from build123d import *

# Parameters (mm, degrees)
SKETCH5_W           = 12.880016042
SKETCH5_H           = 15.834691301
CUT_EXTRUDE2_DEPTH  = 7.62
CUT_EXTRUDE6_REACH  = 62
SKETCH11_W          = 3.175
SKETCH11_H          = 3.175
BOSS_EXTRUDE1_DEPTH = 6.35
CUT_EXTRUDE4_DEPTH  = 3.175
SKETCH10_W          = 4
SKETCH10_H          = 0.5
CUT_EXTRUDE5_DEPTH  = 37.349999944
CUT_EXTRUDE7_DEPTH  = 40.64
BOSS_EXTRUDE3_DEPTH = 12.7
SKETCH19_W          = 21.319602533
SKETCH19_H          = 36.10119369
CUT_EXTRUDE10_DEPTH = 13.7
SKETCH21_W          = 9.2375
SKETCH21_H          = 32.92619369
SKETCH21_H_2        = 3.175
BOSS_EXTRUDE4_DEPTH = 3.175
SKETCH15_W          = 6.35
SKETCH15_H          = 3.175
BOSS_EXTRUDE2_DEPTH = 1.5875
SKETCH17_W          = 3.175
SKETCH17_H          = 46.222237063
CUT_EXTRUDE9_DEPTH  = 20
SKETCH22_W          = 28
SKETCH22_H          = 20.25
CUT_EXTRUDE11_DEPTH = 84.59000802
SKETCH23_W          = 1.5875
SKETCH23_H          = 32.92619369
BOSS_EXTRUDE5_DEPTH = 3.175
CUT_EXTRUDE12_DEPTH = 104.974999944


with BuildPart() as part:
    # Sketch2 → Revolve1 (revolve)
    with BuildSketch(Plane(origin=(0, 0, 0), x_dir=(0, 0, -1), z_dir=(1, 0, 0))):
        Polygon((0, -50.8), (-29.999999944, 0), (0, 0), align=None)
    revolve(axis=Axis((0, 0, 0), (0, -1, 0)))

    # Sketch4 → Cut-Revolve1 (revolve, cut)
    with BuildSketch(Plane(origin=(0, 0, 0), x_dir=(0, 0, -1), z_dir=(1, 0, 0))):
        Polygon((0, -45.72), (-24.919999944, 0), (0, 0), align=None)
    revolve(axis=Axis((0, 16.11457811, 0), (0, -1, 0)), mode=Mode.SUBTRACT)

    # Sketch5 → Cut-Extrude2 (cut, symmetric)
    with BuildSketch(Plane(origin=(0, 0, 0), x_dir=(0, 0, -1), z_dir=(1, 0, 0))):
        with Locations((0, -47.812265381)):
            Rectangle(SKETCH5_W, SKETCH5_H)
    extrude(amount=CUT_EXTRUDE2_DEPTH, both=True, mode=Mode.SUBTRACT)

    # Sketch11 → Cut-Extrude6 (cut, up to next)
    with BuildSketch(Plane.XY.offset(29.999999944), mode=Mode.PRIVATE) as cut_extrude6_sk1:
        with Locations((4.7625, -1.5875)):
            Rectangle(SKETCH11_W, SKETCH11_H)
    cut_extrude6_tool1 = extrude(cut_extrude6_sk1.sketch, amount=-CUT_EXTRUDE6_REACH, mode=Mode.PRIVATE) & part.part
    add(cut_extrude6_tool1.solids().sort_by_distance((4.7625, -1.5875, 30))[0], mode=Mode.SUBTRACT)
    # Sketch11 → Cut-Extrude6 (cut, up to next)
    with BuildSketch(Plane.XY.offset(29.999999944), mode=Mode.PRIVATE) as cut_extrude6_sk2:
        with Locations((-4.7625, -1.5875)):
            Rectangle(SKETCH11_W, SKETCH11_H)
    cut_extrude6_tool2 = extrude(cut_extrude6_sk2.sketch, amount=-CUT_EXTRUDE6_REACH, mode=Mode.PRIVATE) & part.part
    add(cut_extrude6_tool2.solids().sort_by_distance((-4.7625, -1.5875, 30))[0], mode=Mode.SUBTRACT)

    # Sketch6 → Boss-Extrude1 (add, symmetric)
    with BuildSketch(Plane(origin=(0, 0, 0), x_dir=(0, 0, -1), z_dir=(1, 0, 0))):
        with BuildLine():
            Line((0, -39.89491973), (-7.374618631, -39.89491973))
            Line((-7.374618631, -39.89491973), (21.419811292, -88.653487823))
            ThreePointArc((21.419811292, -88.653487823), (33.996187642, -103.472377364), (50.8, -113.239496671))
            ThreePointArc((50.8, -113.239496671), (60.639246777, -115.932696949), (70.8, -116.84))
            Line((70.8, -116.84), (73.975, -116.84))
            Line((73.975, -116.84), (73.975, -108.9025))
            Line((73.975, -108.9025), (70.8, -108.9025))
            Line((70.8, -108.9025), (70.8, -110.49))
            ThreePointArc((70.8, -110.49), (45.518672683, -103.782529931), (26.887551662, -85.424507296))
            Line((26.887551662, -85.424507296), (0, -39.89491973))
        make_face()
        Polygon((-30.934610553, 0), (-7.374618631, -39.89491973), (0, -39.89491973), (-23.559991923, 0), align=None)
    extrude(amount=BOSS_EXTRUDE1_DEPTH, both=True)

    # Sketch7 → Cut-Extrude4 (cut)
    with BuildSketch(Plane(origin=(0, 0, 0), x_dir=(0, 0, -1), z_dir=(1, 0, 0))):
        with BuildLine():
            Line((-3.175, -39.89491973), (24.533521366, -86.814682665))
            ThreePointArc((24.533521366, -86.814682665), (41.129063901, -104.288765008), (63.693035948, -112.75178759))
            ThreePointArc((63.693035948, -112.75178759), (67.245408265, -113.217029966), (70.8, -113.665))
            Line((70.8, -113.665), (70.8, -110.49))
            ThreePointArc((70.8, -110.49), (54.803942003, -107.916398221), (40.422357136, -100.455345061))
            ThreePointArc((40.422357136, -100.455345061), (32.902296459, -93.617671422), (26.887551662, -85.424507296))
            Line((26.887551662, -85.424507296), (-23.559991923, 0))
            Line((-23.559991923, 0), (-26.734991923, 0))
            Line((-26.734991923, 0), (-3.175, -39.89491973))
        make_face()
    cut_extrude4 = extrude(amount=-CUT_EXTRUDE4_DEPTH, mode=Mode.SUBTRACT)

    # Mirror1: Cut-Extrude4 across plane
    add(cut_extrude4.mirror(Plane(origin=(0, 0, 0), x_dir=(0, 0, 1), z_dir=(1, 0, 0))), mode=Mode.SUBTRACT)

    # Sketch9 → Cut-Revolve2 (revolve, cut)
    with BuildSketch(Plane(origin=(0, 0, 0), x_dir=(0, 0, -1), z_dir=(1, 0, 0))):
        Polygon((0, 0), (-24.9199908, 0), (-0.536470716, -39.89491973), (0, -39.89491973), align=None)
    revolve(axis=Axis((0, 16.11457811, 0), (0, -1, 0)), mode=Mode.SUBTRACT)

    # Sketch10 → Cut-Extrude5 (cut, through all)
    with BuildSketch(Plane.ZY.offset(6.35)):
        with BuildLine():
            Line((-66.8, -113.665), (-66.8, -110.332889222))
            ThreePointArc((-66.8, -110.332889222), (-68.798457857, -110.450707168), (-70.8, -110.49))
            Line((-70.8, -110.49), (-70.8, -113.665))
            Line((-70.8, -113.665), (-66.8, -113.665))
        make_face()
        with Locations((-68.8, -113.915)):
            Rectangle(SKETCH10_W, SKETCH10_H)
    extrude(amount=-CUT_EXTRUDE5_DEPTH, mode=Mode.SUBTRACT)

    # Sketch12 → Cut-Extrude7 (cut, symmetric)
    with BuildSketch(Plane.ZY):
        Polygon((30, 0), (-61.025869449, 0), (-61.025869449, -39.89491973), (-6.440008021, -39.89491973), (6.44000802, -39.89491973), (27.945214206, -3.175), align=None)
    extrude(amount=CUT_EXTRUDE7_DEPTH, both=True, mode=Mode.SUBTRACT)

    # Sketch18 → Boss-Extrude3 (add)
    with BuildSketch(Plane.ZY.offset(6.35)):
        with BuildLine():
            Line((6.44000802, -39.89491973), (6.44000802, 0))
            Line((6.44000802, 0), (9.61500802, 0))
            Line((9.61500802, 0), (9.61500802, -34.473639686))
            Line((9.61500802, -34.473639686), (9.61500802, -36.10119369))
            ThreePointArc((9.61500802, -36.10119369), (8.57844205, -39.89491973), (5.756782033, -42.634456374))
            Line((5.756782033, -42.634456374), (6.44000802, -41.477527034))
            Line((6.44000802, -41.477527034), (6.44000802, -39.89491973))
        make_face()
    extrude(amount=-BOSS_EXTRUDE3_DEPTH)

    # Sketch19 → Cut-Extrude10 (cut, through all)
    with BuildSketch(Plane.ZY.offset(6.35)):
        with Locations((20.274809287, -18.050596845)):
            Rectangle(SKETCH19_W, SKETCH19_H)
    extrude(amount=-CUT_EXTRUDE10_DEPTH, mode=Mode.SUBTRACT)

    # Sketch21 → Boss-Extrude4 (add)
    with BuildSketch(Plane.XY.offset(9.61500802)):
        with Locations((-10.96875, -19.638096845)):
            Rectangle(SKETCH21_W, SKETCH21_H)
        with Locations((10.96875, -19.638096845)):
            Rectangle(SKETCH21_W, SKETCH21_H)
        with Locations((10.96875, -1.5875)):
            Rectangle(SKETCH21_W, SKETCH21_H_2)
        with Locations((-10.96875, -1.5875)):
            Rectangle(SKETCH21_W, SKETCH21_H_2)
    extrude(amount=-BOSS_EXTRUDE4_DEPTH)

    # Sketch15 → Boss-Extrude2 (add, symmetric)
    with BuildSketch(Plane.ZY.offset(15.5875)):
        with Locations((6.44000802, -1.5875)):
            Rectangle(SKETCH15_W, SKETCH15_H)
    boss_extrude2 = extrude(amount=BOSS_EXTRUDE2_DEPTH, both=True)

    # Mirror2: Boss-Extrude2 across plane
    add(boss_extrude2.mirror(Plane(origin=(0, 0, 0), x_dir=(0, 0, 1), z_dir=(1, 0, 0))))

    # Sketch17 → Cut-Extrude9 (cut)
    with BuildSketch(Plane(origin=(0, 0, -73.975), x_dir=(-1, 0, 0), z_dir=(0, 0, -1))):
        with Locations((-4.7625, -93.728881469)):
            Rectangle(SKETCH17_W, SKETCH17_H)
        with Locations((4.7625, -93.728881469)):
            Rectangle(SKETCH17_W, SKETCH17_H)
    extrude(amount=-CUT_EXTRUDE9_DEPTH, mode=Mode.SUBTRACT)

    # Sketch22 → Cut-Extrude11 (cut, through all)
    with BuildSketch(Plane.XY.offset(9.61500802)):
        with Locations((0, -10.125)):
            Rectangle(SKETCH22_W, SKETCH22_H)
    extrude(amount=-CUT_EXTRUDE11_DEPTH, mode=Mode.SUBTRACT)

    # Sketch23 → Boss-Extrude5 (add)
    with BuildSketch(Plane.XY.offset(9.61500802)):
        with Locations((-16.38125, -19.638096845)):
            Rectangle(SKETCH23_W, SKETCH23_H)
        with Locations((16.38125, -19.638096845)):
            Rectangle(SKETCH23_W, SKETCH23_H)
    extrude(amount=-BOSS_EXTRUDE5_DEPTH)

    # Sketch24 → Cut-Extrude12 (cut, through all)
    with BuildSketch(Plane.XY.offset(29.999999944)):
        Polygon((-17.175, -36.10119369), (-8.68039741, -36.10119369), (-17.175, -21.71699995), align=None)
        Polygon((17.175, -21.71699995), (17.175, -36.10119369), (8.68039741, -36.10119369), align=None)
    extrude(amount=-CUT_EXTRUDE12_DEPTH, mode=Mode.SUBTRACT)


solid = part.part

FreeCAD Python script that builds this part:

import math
import FreeCAD as App
import Part
import Sketcher

V = App.Vector
Q = App.Units.Quantity

doc = App.newDocument("Part")
body = doc.addObject("PartDesign::Body", "Body")

# Sketch on YZ plane
sketch1 = body.newObject("Sketcher::SketchObject", "Sketch")
sketch1.AttachmentSupport = (doc.getObject("YZ_Plane"), [""])
sketch1.MapMode = "FlatFace"
sketch1.addGeometry([
    Part.LineSegment(V(0, 30, 0), V(-51, 0, 0)),
    Part.LineSegment(V(-51, 0, 0), V(0, 0, 0)),
    Part.LineSegment(V(0, 0, 0), V(0, 30, 0)),
], False)
sketch1.addConstraint([
    Sketcher.Constraint("Coincident", 0, 2, 1, 1),
    Sketcher.Constraint("Coincident", 1, 2, 2, 1),
    Sketcher.Constraint("Coincident", 2, 2, 0, 1),
    Sketcher.Constraint("Horizontal", 1),
    Sketcher.Constraint("Vertical", 2),
    Sketcher.Constraint("Coincident", 1, 2, -1, 1),
    Sketcher.Constraint("DistanceX", 1, 1, 1, 2, Q("2 in")),
    Sketcher.Constraint("DistanceY", 2, 1, 2, 2, Q("30 mm")),
])
revolution = body.newObject("PartDesign::Revolution", "Revolution")
revolution.Profile = sketch1
revolution.ReferenceAxis = (sketch1, ["H_Axis"])
revolution.Angle = 360

# Sketch on YZ plane
sketch2 = body.newObject("Sketcher::SketchObject", "Sketch001")
sketch2.AttachmentSupport = (doc.getObject("YZ_Plane"), [""])
sketch2.MapMode = "FlatFace"
sketch2.addGeometry([
    Part.LineSegment(V(0, 25, 0), V(-46, 0, 0)),
    Part.LineSegment(V(-46, 0, 0), V(0, 0, 0)),
    Part.LineSegment(V(0, 0, 0), V(0, 25, 0)),
], False)
sketch2.addConstraint([
    Sketcher.Constraint("Coincident", 0, 2, 1, 1),
    Sketcher.Constraint("Coincident", 1, 2, 2, 1),
    Sketcher.Constraint("Coincident", 2, 2, 0, 1),
    Sketcher.Constraint("Horizontal", 1),
    Sketcher.Constraint("Vertical", 2),
    Sketcher.Constraint("Coincident", 1, 2, -1, 1),
    Sketcher.Constraint("DistanceX", 1, 1, 1, 2, Q("1.8 in")),
    Sketcher.Constraint("DistanceY", 2, 1, 2, 2, Q("24.92 mm")),
])
groove = body.newObject("PartDesign::Groove", "Groove")
groove.Profile = sketch2
groove.ReferenceAxis = (sketch2, ["H_Axis"])
groove.Angle = 360

# Sketch on YZ plane
sketch3 = body.newObject("Sketcher::SketchObject", "Sketch002")
sketch3.AttachmentSupport = (doc.getObject("YZ_Plane"), [""])
sketch3.MapMode = "FlatFace"
sketch3.addGeometry([
    Part.LineSegment(V(-40, 6, 0), V(-56, 6, 0)),
    Part.LineSegment(V(-56, 6, 0), V(-56, -6, 0)),
    Part.LineSegment(V(-56, -6, 0), V(-40, -6, 0)),
    Part.LineSegment(V(-40, -6, 0), V(-40, 6, 0)),
], False)
sketch3.addConstraint([
    Sketcher.Constraint("Coincident", 0, 2, 1, 1),
    Sketcher.Constraint("Coincident", 1, 2, 2, 1),
    Sketcher.Constraint("Coincident", 2, 2, 3, 1),
    Sketcher.Constraint("Coincident", 3, 2, 0, 1),
    Sketcher.Constraint("Horizontal", 0),
    Sketcher.Constraint("Vertical", 1),
    Sketcher.Constraint("Horizontal", 2),
    Sketcher.Constraint("Vertical", 3),
    Sketcher.Constraint("DistanceX", 0, 2, 0, 1, Q("15.834691 mm")),
    Sketcher.Constraint("DistanceY", 1, 2, 1, 1, Q("12.880016 mm")),
    Sketcher.Constraint("DistanceX", 0, 2, -1, 1, Q("55.729611 mm")),
    Sketcher.Constraint("DistanceY", -1, 1, 0, 2, Q("6.440008 mm")),
])
pocket1 = body.newObject("PartDesign::Pocket", "Pocket")
pocket1.Profile = sketch3
pocket1.Length = Q("0.6 in")
pocket1.Midplane = True

# Sketch on XY plane
sketch4 = body.newObject("Sketcher::SketchObject", "Sketch003")
sketch4.AttachmentSupport = (doc.getObject("XY_Plane"), [""])
sketch4.MapMode = "FlatFace"
sketch4.AttachmentOffset = App.Placement(V(0, 0, 30), App.Rotation())
sketch4.addGeometry([
    Part.LineSegment(V(3.2, 0, 0), V(3.2, -3.2, 0)),
    Part.LineSegment(V(3.2, -3.2, 0), V(6.3, -3.2, 0)),
    Part.LineSegment(V(6.3, -3.2, 0), V(6.3, 0, 0)),
    Part.LineSegment(V(6.3, 0, 0), V(3.2, 0, 0)),
], False)
sketch4.addConstraint([
    Sketcher.Constraint("Coincident", 0, 2, 1, 1),
    Sketcher.Constraint("Coincident", 1, 2, 2, 1),
    Sketcher.Constraint("Coincident", 2, 2, 3, 1),
    Sketcher.Constraint("Coincident", 3, 2, 0, 1),
    Sketcher.Constraint("Vertical", 0),
    Sketcher.Constraint("Horizontal", 1),
    Sketcher.Constraint("Vertical", 2),
    Sketcher.Constraint("Horizontal", 3),
    Sketcher.Constraint("PointOnObject", 2, 2, -1),
    Sketcher.Constraint("Equal", 3, 0),
    Sketcher.Constraint("DistanceX", 1, 1, 1, 2, Q("0.125 in")),
    Sketcher.Constraint("DistanceX", -1, 1, 1, 2, Q("0.25 in")),
])
pocket2 = body.newObject("PartDesign::Pocket", "Pocket001")
pocket2.Profile = sketch4
pocket2.Length = 7.69691

# Sketch on XY plane
sketch5 = body.newObject("Sketcher::SketchObject", "Sketch004")
sketch5.AttachmentSupport = (doc.getObject("XY_Plane"), [""])
sketch5.MapMode = "FlatFace"
sketch5.AttachmentOffset = App.Placement(V(0, 0, 30), App.Rotation())
sketch5.addGeometry([
    Part.LineSegment(V(-6.3, 0, 0), V(-6.3, -3.2, 0)),
    Part.LineSegment(V(-6.3, -3.2, 0), V(-3.2, -3.2, 0)),
    Part.LineSegment(V(-3.2, -3.2, 0), V(-3.2, 0, 0)),
    Part.LineSegment(V(-3.2, 0, 0), V(-6.3, 0, 0)),
], False)
sketch5.addConstraint([
    Sketcher.Constraint("Coincident", 0, 2, 1, 1),
    Sketcher.Constraint("Coincident", 1, 2, 2, 1),
    Sketcher.Constraint("Coincident", 2, 2, 3, 1),
    Sketcher.Constraint("Coincident", 3, 2, 0, 1),
    Sketcher.Constraint("Vertical", 0),
    Sketcher.Constraint("Horizontal", 1),
    Sketcher.Constraint("Vertical", 2),
    Sketcher.Constraint("Horizontal", 3),
    Sketcher.Constraint("PointOnObject", 2, 2, -1),
    Sketcher.Constraint("Equal", 3, 0),
    Sketcher.Constraint("DistanceX", 1, 1, 1, 2, Q("0.125 in")),
    Sketcher.Constraint("DistanceX", 0, 2, -1, 1, Q("0.25 in")),
])
pocket3 = body.newObject("PartDesign::Pocket", "Pocket002")
pocket3.Profile = sketch5
pocket3.Length = 7.69691

# Sketch on YZ plane
sketch6 = body.newObject("Sketcher::SketchObject", "Sketch005")
sketch6.AttachmentSupport = (doc.getObject("YZ_Plane"), [""])
sketch6.MapMode = "FlatFace"
sketch6.addGeometry([
    Part.LineSegment(V(-39.9, 7.4, 0), V(-88.7, -21.4, 0)),  # 0
    Part.ArcOfCircle(Part.Circle(V(-59.5, -70.8, 0), V(0, 0, 1), 57.3), math.radians(121), math.radians(160)),  # 1
    Part.ArcOfCircle(Part.Circle(V(-59.5, -70.8, 0), V(0, 0, 1), 57.3), math.radians(160), math.radians(180)),  # 2
    Part.LineSegment(V(-116.8, -70.8, 0), V(-116.8, -74, 0)),  # 3
    Part.LineSegment(V(-116.8, -74, 0), V(-108.9, -74, 0)),  # 4
    Part.LineSegment(V(-108.9, -74, 0), V(-108.9, -70.8, 0)),  # 5
    Part.LineSegment(V(-108.9, -70.8, 0), V(-110.5, -70.8, 0)),  # 6
    Part.ArcOfCircle(Part.Circle(V(-59.5, -70.8, 0), V(0, 0, 1), 51), math.radians(121), math.radians(180)),  # 7
    Part.LineSegment(V(-85.4, -26.9, 0), V(-39.9, 0, 0)),  # 8
    Part.LineSegment(V(-39.9, 0, 0), V(0, 23.6, 0)),  # 9
    Part.LineSegment(V(0, 23.6, 0), V(0, 30.9, 0)),  # 10
    Part.LineSegment(V(0, 30.9, 0), V(-39.9, 7.4, 0)),  # 11
], False)
sketch6.addConstraint([
    Sketcher.Constraint("Tangent", 0, 2, 1, 1),
    Sketcher.Constraint("Tangent", 1, 2, 2, 1),
    Sketcher.Constraint("Tangent", 2, 2, 3, 1),
    Sketcher.Constraint("Coincident", 3, 2, 4, 1),
    Sketcher.Constraint("Coincident", 4, 2, 5, 1),
    Sketcher.Constraint("Coincident", 5, 2, 6, 1),
    Sketcher.Constraint("Coincident", 6, 2, 7, 2),
    Sketcher.Constraint("Tangent", 7, 1, 8, 1),
    Sketcher.Constraint("Coincident", 8, 2, 9, 1),
    Sketcher.Constraint("Coincident", 9, 2, 10, 1),
    Sketcher.Constraint("Coincident", 10, 2, 11, 1),
    Sketcher.Constraint("Coincident", 11, 2, 0, 1),
    Sketcher.Constraint("Vertical", 3),
    Sketcher.Constraint("Horizontal", 4),
    Sketcher.Constraint("Vertical", 5),
    Sketcher.Constraint("Horizontal", 6),
    Sketcher.Constraint("Vertical", 10),
    Sketcher.Constraint("Coincident", 7, 3, 1, 3),
    Sketcher.Constraint("Equal", 1, 2),
    Sketcher.Constraint("PointOnObject", 8, 2, -1),
    Sketcher.Constraint("PointOnObject", 9, 2, -2),
    Sketcher.Constraint("Parallel", 0, 8),
    Sketcher.Constraint("Parallel", 8, 9),
    Sketcher.Constraint("Parallel", 9, 11),
    Sketcher.Constraint("Horizontal", 2, 2, 5, 2),
    Sketcher.Constraint("Vertical", 8, 2, 11, 2),
    Sketcher.Constraint("DistanceY", 1, 2, -1, 1, Q("2 in")),
    Sketcher.Constraint("DistanceX", 2, 2, -1, 1, Q("4.6 in")),
    Sketcher.Constraint("DistanceX", 4, 1, 4, 2, Q("0.3125 in")),
    Sketcher.Constraint("DistanceX", 6, 2, 6, 1, Q("0.0625 in")),
    Sketcher.Constraint("DistanceY", 3, 2, 3, 1, Q("0.125 in")),
    Sketcher.Constraint("Radius", 1, Q("57.348041 mm")),
    Sketcher.Constraint("DistanceY", 10, 1, 10, 2, Q("7.374619 mm")),
    Sketcher.Constraint("DistanceY", 1, 3, -1, 1, Q("70.8 mm")),
])
pad1 = body.newObject("PartDesign::Pad", "Pad")
pad1.Profile = sketch6
pad1.Length = Q("0.5 in")
pad1.Midplane = True

# Sketch on YZ plane
sketch7 = body.newObject("Sketcher::SketchObject", "Sketch006")
sketch7.AttachmentSupport = (doc.getObject("YZ_Plane"), [""])
sketch7.MapMode = "FlatFace"
sketch7.addGeometry([
    Part.LineSegment(V(-39.9, 3.2, 0), V(-86.8, -24.5, 0)),  # 0
    Part.ArcOfCircle(Part.Circle(V(-59.5, -70.8, 0), V(0, 0, 1), 53.7), math.radians(121), math.radians(172)),  # 1
    Part.ArcOfCircle(Part.Circle(V(617.9, -161.2, 0), V(0, 0, 1), 737.1), math.radians(172.4), math.radians(172.96)),  # 2
    Part.LineSegment(V(-113.7, -70.8, 0), V(-110.5, -70.8, 0)),  # 3
    Part.ArcOfCircle(Part.Circle(V(-59.5, -70.8, 0), V(0, 0, 1), 51), math.radians(143), math.radians(180)),  # 4
    Part.ArcOfCircle(Part.Circle(V(-59.5, -70.8, 0), V(0, 0, 1), 51), math.radians(121), math.radians(143)),  # 5
    Part.LineSegment(V(-85.4, -26.9, 0), V(0, 23.6, 0)),  # 6
    Part.LineSegment(V(0, 23.6, 0), V(0, 26.7, 0)),  # 7
    Part.LineSegment(V(0, 26.7, 0), V(-39.9, 3.2, 0)),  # 8
], False)
sketch7.addConstraint([
    Sketcher.Constraint("Tangent", 0, 2, 1, 1),
    Sketcher.Constraint("Tangent", 1, 2, 2, 1),
    Sketcher.Constraint("Coincident", 2, 2, 3, 1),
    Sketcher.Constraint("Coincident", 3, 2, 4, 2),
    Sketcher.Constraint("Tangent", 4, 1, 5, 2),
    Sketcher.Constraint("Tangent", 5, 1, 6, 1),
    Sketcher.Constraint("Coincident", 6, 2, 7, 1),
    Sketcher.Constraint("Coincident", 7, 2, 8, 1),
    Sketcher.Constraint("Coincident", 8, 2, 0, 1),
    Sketcher.Constraint("Horizontal", 3),
    Sketcher.Constraint("Vertical", 7),
    Sketcher.Constraint("Coincident", 4, 3, 1, 3),
    Sketcher.Constraint("Equal", 4, 5),
    Sketcher.Constraint("PointOnObject", 6, 2, -2),
    Sketcher.Constraint("Parallel", 0, 6),
    Sketcher.Constraint("Parallel", 6, 8),
    Sketcher.Constraint("Equal", 3, 7),
    Sketcher.Constraint("DistanceX", 3, 1, 3, 2, Q("0.125 in")),
    Sketcher.Constraint("DistanceX", 3, 2, -1, 1, Q("4.35 in")),
    Sketcher.Constraint("DistanceY", -1, 1, 8, 2, Q("0.125 in")),
    Sketcher.Constraint("Radius", 1, Q("53.731911 mm")),
    Sketcher.Constraint("Radius", 4, Q("50.998041 mm")),
    Sketcher.Constraint("DistanceY", 1, 2, -1, 1, Q("2.5075998 in")),
    Sketcher.Constraint("Radius", 2, Q("737.081714 mm")),
    Sketcher.Constraint("DistanceY", 1, 3, -1, 1, Q("70.8 mm")),
    Sketcher.Constraint("DistanceY", 1, 2, 4, 1, Q("23.270679 mm")),
])
pocket4 = body.newObject("PartDesign::Pocket", "Pocket003")
pocket4.Profile = sketch7
pocket4.Length = Q("0.125 in")
doc.recompute()

mirrored = body.newObject("PartDesign::Mirrored", "Mirrored")
mirrored.Originals = [pocket4]
mirrored.MirrorPlane = (doc.getObject("YZ_Plane"), [""])
body.Tip = mirrored

# Sketch on YZ plane
sketch8 = body.newObject("Sketcher::SketchObject", "Sketch007")
sketch8.AttachmentSupport = (doc.getObject("YZ_Plane"), [""])
sketch8.MapMode = "FlatFace"
sketch8.addGeometry([
    Part.LineSegment(V(0, 0, 0), V(0, 24.9, 0)),
    Part.LineSegment(V(0, 24.9, 0), V(-39.9, 0.5, 0)),
    Part.LineSegment(V(-39.9, 0.5, 0), V(-39.9, 0, 0)),
    Part.LineSegment(V(-39.9, 0, 0), V(0, 0, 0)),
], False)
sketch8.addConstraint([
    Sketcher.Constraint("Coincident", 0, 2, 1, 1),
    Sketcher.Constraint("Coincident", 1, 2, 2, 1),
    Sketcher.Constraint("Coincident", 2, 2, 3, 1),
    Sketcher.Constraint("Coincident", 3, 2, 0, 1),
    Sketcher.Constraint("Vertical", 0),
    Sketcher.Constraint("Vertical", 2),
    Sketcher.Constraint("Horizontal", 3),
    Sketcher.Constraint("Coincident", 3, 2, -1, 1),
    Sketcher.Constraint("DistanceX", 3, 1, 3, 2, Q("39.89492 mm")),
    Sketcher.Constraint("DistanceY", 0, 1, 0, 2, Q("24.919991 mm")),
    Sketcher.Constraint("DistanceY", 2, 2, 2, 1, Q("0.536471 mm")),
])
groove2 = body.newObject("PartDesign::Groove", "Groove001")
groove2.Profile = sketch8
groove2.ReferenceAxis = (sketch8, ["H_Axis"])
groove2.Angle = 360

# Sketch on YZ plane
sketch9 = body.newObject("Sketcher::SketchObject", "Sketch008")
sketch9.AttachmentSupport = (doc.getObject("YZ_Plane"), [""])
sketch9.MapMode = "FlatFace"
sketch9.AttachmentOffset = App.Placement(V(0, 0, -0.25 * 25.4), App.Rotation())
sketch9.addGeometry([
    Part.ArcOfCircle(Part.Circle(V(-59.5, -70.8, 0), V(0, 0, 1), 51), math.radians(175.5), math.radians(180)),
    Part.LineSegment(V(-110.5, -70.8, 0), V(-114.2, -70.8, 0)),
    Part.LineSegment(V(-114.2, -70.8, 0), V(-114.2, -66.8, 0)),
    Part.LineSegment(V(-114.2, -66.8, 0), V(-110.3, -66.8, 0)),
], False)
sketch9.addConstraint([
    Sketcher.Constraint("Coincident", 0, 2, 1, 1),
    Sketcher.Constraint("Coincident", 1, 2, 2, 1),
    Sketcher.Constraint("Coincident", 2, 2, 3, 1),
    Sketcher.Constraint("Coincident", 3, 2, 0, 1),
    Sketcher.Constraint("Horizontal", 1),
    Sketcher.Constraint("Vertical", 2),
    Sketcher.Constraint("Horizontal", 3),
    Sketcher.Constraint("DistanceX", 0, 2, -1, 1, Q("4.35 in")),
    Sketcher.Constraint("Radius", 0, Q("50.998041 mm")),
    Sketcher.Constraint("DistanceX", 1, 2, 1, 1, Q("3.675 mm")),
    Sketcher.Constraint("DistanceY", 2, 1, 2, 2, Q("4 mm")),
    Sketcher.Constraint("DistanceX", 3, 1, 3, 2, Q("3.832111 mm")),
    Sketcher.Constraint("DistanceY", 0, 3, -1, 1, Q("70.8 mm")),
])
pocket5 = body.newObject("PartDesign::Pocket", "Pocket004")
pocket5.Profile = sketch9
pocket5.Type = "ThroughAll"
pocket5.Reversed = True

# Sketch on YZ plane
sketch10 = body.newObject("Sketcher::SketchObject", "Sketch009")
sketch10.AttachmentSupport = (doc.getObject("YZ_Plane"), [""])
sketch10.MapMode = "FlatFace"
sketch10.addGeometry([
    Part.LineSegment(V(0, 30, 0), V(0, -61, 0)),  # 0
    Part.LineSegment(V(0, -61, 0), V(-39.9, -61, 0)),  # 1
    Part.LineSegment(V(-39.9, -61, 0), V(-39.9, 6.4, 0)),  # 2
    Part.LineSegment(V(-39.9, 6.4, 0), V(-3.2, 27.9, 0)),  # 3
    Part.LineSegment(V(-3.2, 27.9, 0), V(0, 30, 0)),  # 4
], False)
sketch10.addConstraint([
    Sketcher.Constraint("Coincident", 0, 2, 1, 1),
    Sketcher.Constraint("Coincident", 1, 2, 2, 1),
    Sketcher.Constraint("Coincident", 2, 2, 3, 1),
    Sketcher.Constraint("Coincident", 3, 2, 4, 1),
    Sketcher.Constraint("Coincident", 4, 2, 0, 1),
    Sketcher.Constraint("Vertical", 0),
    Sketcher.Constraint("Horizontal", 1),
    Sketcher.Constraint("Vertical", 2),
    Sketcher.Constraint("PointOnObject", 0, 2, -2),
    Sketcher.Constraint("Angle", 4, Q("32.91 deg")),
    Sketcher.Constraint("DistanceX", 3, 2, -1, 1, Q("0.125 in")),
    Sketcher.Constraint("DistanceX", 1, 2, 1, 1, Q("39.89492 mm")),
    Sketcher.Constraint("DistanceY", 0, 2, 0, 1, Q("91.025869 mm")),
    Sketcher.Constraint("DistanceY", -1, 1, 4, 2, Q("30 mm")),
    Sketcher.Constraint("DistanceY", 2, 1, 2, 2, Q("67.465877 mm")),
])
pocket6 = body.newObject("PartDesign::Pocket", "Pocket005")
pocket6.Profile = sketch10
pocket6.Length = Q("3.2 in")
pocket6.Midplane = True

# Sketch on YZ plane
sketch11 = body.newObject("Sketcher::SketchObject", "Sketch010")
sketch11.AttachmentSupport = (doc.getObject("YZ_Plane"), [""])
sketch11.MapMode = "FlatFace"
sketch11.AttachmentOffset = App.Placement(V(0, 0, -0.25 * 25.4), App.Rotation())
sketch11.addGeometry([
    Part.LineSegment(V(0, 9.6, 0), V(0, 6.4, 0)),  # 0
    Part.LineSegment(V(0, 6.4, 0), V(-41.5, 6.4, 0)),  # 1
    Part.LineSegment(V(-41.5, 6.4, 0), V(-42.6, 5.8, 0)),  # 2
    Part.ArcOfCircle(Part.Circle(V(-36.1, 2.2, 0), V(0, 0, 1), 7.5), math.radians(90), math.radians(151)),  # 3
    Part.LineSegment(V(-36.1, 9.6, 0), V(0, 9.6, 0)),  # 4
], False)
sketch11.addConstraint([
    Sketcher.Constraint("Coincident", 0, 2, 1, 1),
    Sketcher.Constraint("Coincident", 1, 2, 2, 1),
    Sketcher.Constraint("Coincident", 2, 2, 3, 2),
    Sketcher.Constraint("Tangent", 3, 1, 4, 1),
    Sketcher.Constraint("Coincident", 4, 2, 0, 1),
    Sketcher.Constraint("Vertical", 0),
    Sketcher.Constraint("Horizontal", 1),
    Sketcher.Constraint("Horizontal", 4),
    Sketcher.Constraint("PointOnObject", 0, 2, -2),
    Sketcher.Constraint("DistanceY", 0, 2, 0, 1, Q("0.125 in")),
    Sketcher.Constraint("Radius", 3, Q("7.460609 mm")),
    Sketcher.Constraint("DistanceY", -1, 1, 3, 3, Q("2.154399 mm")),
    Sketcher.Constraint("Distance", 2, Q("1.343608 mm")),
    Sketcher.Constraint("DistanceX", 1, 2, 1, 1, Q("41.477527 mm")),
    Sketcher.Constraint("DistanceX", 4, 1, 4, 2, Q("36.101194 mm")),
])
pad2 = body.newObject("PartDesign::Pad", "Pad001")
pad2.Profile = sketch11
pad2.Length = Q("0.5 in")

# Sketch on YZ plane
sketch12 = body.newObject("Sketcher::SketchObject", "Sketch011")
sketch12.AttachmentSupport = (doc.getObject("YZ_Plane"), [""])
sketch12.MapMode = "FlatFace"
sketch12.AttachmentOffset = App.Placement(V(0, 0, -0.25 * 25.4), App.Rotation())
sketch12.addGeometry([
    Part.LineSegment(V(0, 10, 0), V(-36, 10, 0)),
    Part.LineSegment(V(-36, 10, 0), V(-36, 31, 0)),
    Part.LineSegment(V(-36, 31, 0), V(0, 31, 0)),
    Part.LineSegment(V(0, 31, 0), V(0, 10, 0)),
], False)
sketch12.addConstraint([
    Sketcher.Constraint("Coincident", 0, 2, 1, 1),
    Sketcher.Constraint("Coincident", 1, 2, 2, 1),
    Sketcher.Constraint("Coincident", 2, 2, 3, 1),
    Sketcher.Constraint("Coincident", 3, 2, 0, 1),
    Sketcher.Constraint("Horizontal", 0),
    Sketcher.Constraint("Vertical", 1),
    Sketcher.Constraint("Horizontal", 2),
    Sketcher.Constraint("Vertical", 3),
    Sketcher.Constraint("PointOnObject", 2, 2, -2),
    Sketcher.Constraint("DistanceX", 0, 2, 0, 1, Q("36.101194 mm")),
    Sketcher.Constraint("DistanceY", 1, 1, 1, 2, Q("21.319603 mm")),
    Sketcher.Constraint("DistanceY", -1, 1, 0, 2, Q("9.615008 mm")),
])
pocket7 = body.newObject("PartDesign::Pocket", "Pocket006")
pocket7.Profile = sketch12
pocket7.Type = "ThroughAll"
pocket7.Reversed = True

# Sketch on XY plane
sketch13 = body.newObject("Sketcher::SketchObject", "Sketch012")
sketch13.AttachmentSupport = (doc.getObject("XY_Plane"), [""])
sketch13.MapMode = "FlatFace"
sketch13.AttachmentOffset = App.Placement(V(0, 0, 9.615008), App.Rotation())
sketch13.addGeometry([
    Part.LineSegment(V(-16, -36, 0), V(-6, -36, 0)),  # 0
    Part.LineSegment(V(-6, -36, 0), V(-6, 0, 0)),  # 1
    Part.LineSegment(V(-6, 0, 0), V(-16, 0, 0)),  # 2
    Part.LineSegment(V(-16, 0, 0), V(-16, -36, 0)),  # 3
    Part.LineSegment(V(6, -36, 0), V(16, -36, 0)),  # 4
    Part.LineSegment(V(16, -36, 0), V(16, 0, 0)),  # 5
    Part.LineSegment(V(16, 0, 0), V(6, 0, 0)),  # 6
    Part.LineSegment(V(6, 0, 0), V(6, -36, 0)),  # 7
], False)
sketch13.addConstraint([
    Sketcher.Constraint("Coincident", 0, 2, 1, 1),
    Sketcher.Constraint("Coincident", 1, 2, 2, 1),
    Sketcher.Constraint("Coincident", 2, 2, 3, 1),
    Sketcher.Constraint("Coincident", 3, 2, 0, 1),
    Sketcher.Constraint("Coincident", 4, 2, 5, 1),
    Sketcher.Constraint("Coincident", 5, 2, 6, 1),
    Sketcher.Constraint("Coincident", 6, 2, 7, 1),
    Sketcher.Constraint("Coincident", 7, 2, 4, 1),
    Sketcher.Constraint("Horizontal", 0),
    Sketcher.Constraint("Vertical", 1),
    Sketcher.Constraint("Horizontal", 2),
    Sketcher.Constraint("Vertical", 3),
    Sketcher.Constraint("Horizontal", 4),
    Sketcher.Constraint("Vertical", 5),
    Sketcher.Constraint("Horizontal", 6),
    Sketcher.Constraint("Vertical", 7),
    Sketcher.Constraint("Symmetric", 2, 2, 5, 2, -1, 1),
    Sketcher.Constraint("Symmetric", 1, 2, 6, 2, -2),
    Sketcher.Constraint("Horizontal", 3, 2, 4, 2),
    Sketcher.Constraint("DistanceX", 1, 2, 6, 2, Q("0.5 in")),
    Sketcher.Constraint("DistanceX", 0, 1, 0, 2, Q("9.2375 mm")),
    Sketcher.Constraint("DistanceY", 1, 1, 1, 2, Q("36.101194 mm")),
])
pad3 = body.newObject("PartDesign::Pad", "Pad002")
pad3.Profile = sketch13
pad3.Length = Q("0.125 in")
pad3.Reversed = True

# Sketch on YZ plane
sketch14 = body.newObject("Sketcher::SketchObject", "Sketch013")
sketch14.AttachmentSupport = (doc.getObject("YZ_Plane"), [""])
sketch14.MapMode = "FlatFace"
sketch14.AttachmentOffset = App.Placement(V(0, 0, -15.5875), App.Rotation())
sketch14.addGeometry([
    Part.LineSegment(V(0, 3.3, 0), V(-3.2, 3.3, 0)),
    Part.LineSegment(V(-3.2, 3.3, 0), V(-3.2, 9.6, 0)),
    Part.LineSegment(V(-3.2, 9.6, 0), V(0, 9.6, 0)),
    Part.LineSegment(V(0, 9.6, 0), V(0, 3.3, 0)),
], False)
sketch14.addConstraint([
    Sketcher.Constraint("Coincident", 0, 2, 1, 1),
    Sketcher.Constraint("Coincident", 1, 2, 2, 1),
    Sketcher.Constraint("Coincident", 2, 2, 3, 1),
    Sketcher.Constraint("Coincident", 3, 2, 0, 1),
    Sketcher.Constraint("Horizontal", 0),
    Sketcher.Constraint("Vertical", 1),
    Sketcher.Constraint("Horizontal", 2),
    Sketcher.Constraint("Vertical", 3),
    Sketcher.Constraint("PointOnObject", 2, 2, -2),
    Sketcher.Constraint("DistanceY", 1, 1, 1, 2, Q("0.25 in")),
    Sketcher.Constraint("DistanceX", 0, 2, 0, 1, Q("0.125 in")),
    Sketcher.Constraint("DistanceY", -1, 1, 0, 2, Q("3.265008 mm")),
])
pad4 = body.newObject("PartDesign::Pad", "Pad003")
pad4.Profile = sketch14
pad4.Length = Q("0.125 in")
pad4.Midplane = True
doc.recompute()

mirrored2 = body.newObject("PartDesign::Mirrored", "Mirrored001")
mirrored2.Originals = [pad4]
mirrored2.MirrorPlane = (doc.getObject("YZ_Plane"), [""])
body.Tip = mirrored2

# Sketch on XY plane
sketch15 = body.newObject("Sketcher::SketchObject", "Sketch014")
sketch15.AttachmentSupport = (doc.getObject("XY_Plane"), [""])
sketch15.MapMode = "FlatFace"
sketch15.AttachmentOffset = App.Placement(V(0, 0, -73.975), App.Rotation())
sketch15.addGeometry([
    Part.LineSegment(V(6.3, -70.6, 0), V(6.3, -116.8, 0)),  # 0
    Part.LineSegment(V(6.3, -116.8, 0), V(3.2, -116.8, 0)),  # 1
    Part.LineSegment(V(3.2, -116.8, 0), V(3.2, -70.6, 0)),  # 2
    Part.LineSegment(V(3.2, -70.6, 0), V(6.3, -70.6, 0)),  # 3
    Part.LineSegment(V(-3.2, -70.6, 0), V(-3.2, -116.8, 0)),  # 4
    Part.LineSegment(V(-3.2, -116.8, 0), V(-6.3, -116.8, 0)),  # 5
    Part.LineSegment(V(-6.3, -116.8, 0), V(-6.3, -70.6, 0)),  # 6
    Part.LineSegment(V(-6.3, -70.6, 0), V(-3.2, -70.6, 0)),  # 7
], False)
sketch15.addConstraint([
    Sketcher.Constraint("Coincident", 0, 2, 1, 1),
    Sketcher.Constraint("Coincident", 1, 2, 2, 1),
    Sketcher.Constraint("Coincident", 2, 2, 3, 1),
    Sketcher.Constraint("Coincident", 3, 2, 0, 1),
    Sketcher.Constraint("Coincident", 4, 2, 5, 1),
    Sketcher.Constraint("Coincident", 5, 2, 6, 1),
    Sketcher.Constraint("Coincident", 6, 2, 7, 1),
    Sketcher.Constraint("Coincident", 7, 2, 4, 1),
    Sketcher.Constraint("Vertical", 0),
    Sketcher.Constraint("Horizontal", 1),
    Sketcher.Constraint("Vertical", 2),
    Sketcher.Constraint("Horizontal", 3),
    Sketcher.Constraint("Vertical", 4),
    Sketcher.Constraint("Horizontal", 5),
    Sketcher.Constraint("Vertical", 6),
    Sketcher.Constraint("Horizontal", 7),
    Sketcher.Constraint("Symmetric", 1, 2, 4, 2, -2),
    Sketcher.Constraint("Symmetric", 3, 2, 6, 2, -2),
    Sketcher.Constraint("DistanceY", 0, 2, -1, 1, Q("4.6 in")),
    Sketcher.Constraint("DistanceX", 5, 2, 0, 2, Q("0.5 in")),
    Sketcher.Constraint("DistanceX", 1, 2, 1, 1, Q("0.125 in")),
    Sketcher.Constraint("DistanceY", 0, 2, 0, 1, Q("46.222237 mm")),
])
pocket8 = body.newObject("PartDesign::Pocket", "Pocket007")
pocket8.Profile = sketch15
pocket8.Length = 20
pocket8.Reversed = True

# Sketch on XY plane
sketch16 = body.newObject("Sketcher::SketchObject", "Sketch015")
sketch16.AttachmentSupport = (doc.getObject("XY_Plane"), [""])
sketch16.MapMode = "FlatFace"
sketch16.AttachmentOffset = App.Placement(V(0, 0, 9.615008), App.Rotation())
sketch16.addGeometry([
    Part.LineSegment(V(-14, 0, 0), V(-14, -20, 0)),
    Part.LineSegment(V(-14, -20, 0), V(14, -20, 0)),
    Part.LineSegment(V(14, -20, 0), V(14, 0, 0)),
    Part.LineSegment(V(14, 0, 0), V(-14, 0, 0)),
], False)
sketch16.addConstraint([
    Sketcher.Constraint("Coincident", 0, 2, 1, 1),
    Sketcher.Constraint("Coincident", 1, 2, 2, 1),
    Sketcher.Constraint("Coincident", 2, 2, 3, 1),
    Sketcher.Constraint("Coincident", 3, 2, 0, 1),
    Sketcher.Constraint("Vertical", 0),
    Sketcher.Constraint("Horizontal", 1),
    Sketcher.Constraint("Vertical", 2),
    Sketcher.Constraint("Horizontal", 3),
    Sketcher.Constraint("Symmetric", 2, 2, 3, 2, -1, 1),
    Sketcher.Constraint("DistanceX", 1, 1, 1, 2, Q("28 mm")),
    Sketcher.Constraint("DistanceY", 0, 2, 0, 1, Q("20.25 mm")),
])
pocket9 = body.newObject("PartDesign::Pocket", "Pocket008")
pocket9.Profile = sketch16
pocket9.Type = "ThroughAll"

# Sketch on XY plane
sketch17 = body.newObject("Sketcher::SketchObject", "Sketch016")
sketch17.AttachmentSupport = (doc.getObject("XY_Plane"), [""])
sketch17.MapMode = "FlatFace"
sketch17.AttachmentOffset = App.Placement(V(0, 0, 9.615008), App.Rotation())
sketch17.addGeometry([
    Part.LineSegment(V(-17.2, -3.2, 0), V(-17.2, -36.1, 0)),  # 0
    Part.LineSegment(V(-17.2, -36.1, 0), V(-15.6, -36.1, 0)),  # 1
    Part.LineSegment(V(-15.6, -36.1, 0), V(-15.6, -3.2, 0)),  # 2
    Part.LineSegment(V(-15.6, -3.2, 0), V(-17.2, -3.2, 0)),  # 3
    Part.LineSegment(V(15.6, -3.2, 0), V(15.6, -36.1, 0)),  # 4
    Part.LineSegment(V(15.6, -36.1, 0), V(17.2, -36.1, 0)),  # 5
    Part.LineSegment(V(17.2, -36.1, 0), V(17.2, -3.2, 0)),  # 6
    Part.LineSegment(V(17.2, -3.2, 0), V(15.6, -3.2, 0)),  # 7
], False)
sketch17.addConstraint([
    Sketcher.Constraint("Coincident", 0, 2, 1, 1),
    Sketcher.Constraint("Coincident", 1, 2, 2, 1),
    Sketcher.Constraint("Coincident", 2, 2, 3, 1),
    Sketcher.Constraint("Coincident", 3, 2, 0, 1),
    Sketcher.Constraint("Coincident", 4, 2, 5, 1),
    Sketcher.Constraint("Coincident", 5, 2, 6, 1),
    Sketcher.Constraint("Coincident", 6, 2, 7, 1),
    Sketcher.Constraint("Coincident", 7, 2, 4, 1),
    Sketcher.Constraint("Vertical", 0),
    Sketcher.Constraint("Horizontal", 1),
    Sketcher.Constraint("Vertical", 2),
    Sketcher.Constraint("Horizontal", 3),
    Sketcher.Constraint("Vertical", 4),
    Sketcher.Constraint("Horizontal", 5),
    Sketcher.Constraint("Vertical", 6),
    Sketcher.Constraint("Horizontal", 7),
    Sketcher.Constraint("Symmetric", 1, 2, 4, 2, -2),
    Sketcher.Constraint("Symmetric", 3, 2, 6, 2, -2),
    Sketcher.Constraint("DistanceX", 1, 1, 1, 2, Q("0.0625 in")),
    Sketcher.Constraint("DistanceY", 2, 2, -1, 1, Q("0.125 in")),
    Sketcher.Constraint("DistanceX", 0, 2, -1, 1, Q("17.175 mm")),
    Sketcher.Constraint("DistanceY", 0, 2, 0, 1, Q("32.926194 mm")),
])
pad5 = body.newObject("PartDesign::Pad", "Pad004")
pad5.Profile = sketch17
pad5.Length = Q("0.125 in")
pad5.Reversed = True

# Sketch on XY plane
sketch18 = body.newObject("Sketcher::SketchObject", "Sketch017")
sketch18.AttachmentSupport = (doc.getObject("XY_Plane"), [""])
sketch18.MapMode = "FlatFace"
sketch18.AttachmentOffset = App.Placement(V(0, 0, 30), App.Rotation())
sketch18.addGeometry([
    Part.LineSegment(V(-17, -36, 0), V(-9, -36, 0)),  # 0
    Part.LineSegment(V(-9, -36, 0), V(-17, -22, 0)),  # 1
    Part.LineSegment(V(-17, -22, 0), V(-17, -36, 0)),  # 2
    Part.LineSegment(V(17, -36, 0), V(17, -22, 0)),  # 3
    Part.LineSegment(V(17, -22, 0), V(9, -36, 0)),  # 4
    Part.LineSegment(V(9, -36, 0), V(17, -36, 0)),  # 5
], False)
sketch18.addConstraint([
    Sketcher.Constraint("Coincident", 0, 2, 1, 1),
    Sketcher.Constraint("Coincident", 1, 2, 2, 1),
    Sketcher.Constraint("Coincident", 2, 2, 0, 1),
    Sketcher.Constraint("Coincident", 3, 2, 4, 1),
    Sketcher.Constraint("Coincident", 4, 2, 5, 1),
    Sketcher.Constraint("Coincident", 5, 2, 3, 1),
    Sketcher.Constraint("Horizontal", 0),
    Sketcher.Constraint("Vertical", 2),
    Sketcher.Constraint("Vertical", 3),
    Sketcher.Constraint("Horizontal", 5),
    Sketcher.Constraint("Symmetric", 1, 2, 3, 2, -2),
    Sketcher.Constraint("Symmetric", 0, 2, 4, 2, -2),
    Sketcher.Constraint("DistanceY", 1, 2, -1, 1, Q("0.855 in")),
    Sketcher.Constraint("DistanceX", 1, 2, -1, 1, Q("17.175 mm")),
    Sketcher.Constraint("DistanceX", 0, 1, 0, 2, Q("8.494603 mm")),
    Sketcher.Constraint("DistanceY", 2, 2, 2, 1, Q("14.384194 mm")),
])
pocket10 = body.newObject("PartDesign::Pocket", "Pocket009")
pocket10.Profile = sketch18
pocket10.Type = "ThroughAll"

doc.recompute()
